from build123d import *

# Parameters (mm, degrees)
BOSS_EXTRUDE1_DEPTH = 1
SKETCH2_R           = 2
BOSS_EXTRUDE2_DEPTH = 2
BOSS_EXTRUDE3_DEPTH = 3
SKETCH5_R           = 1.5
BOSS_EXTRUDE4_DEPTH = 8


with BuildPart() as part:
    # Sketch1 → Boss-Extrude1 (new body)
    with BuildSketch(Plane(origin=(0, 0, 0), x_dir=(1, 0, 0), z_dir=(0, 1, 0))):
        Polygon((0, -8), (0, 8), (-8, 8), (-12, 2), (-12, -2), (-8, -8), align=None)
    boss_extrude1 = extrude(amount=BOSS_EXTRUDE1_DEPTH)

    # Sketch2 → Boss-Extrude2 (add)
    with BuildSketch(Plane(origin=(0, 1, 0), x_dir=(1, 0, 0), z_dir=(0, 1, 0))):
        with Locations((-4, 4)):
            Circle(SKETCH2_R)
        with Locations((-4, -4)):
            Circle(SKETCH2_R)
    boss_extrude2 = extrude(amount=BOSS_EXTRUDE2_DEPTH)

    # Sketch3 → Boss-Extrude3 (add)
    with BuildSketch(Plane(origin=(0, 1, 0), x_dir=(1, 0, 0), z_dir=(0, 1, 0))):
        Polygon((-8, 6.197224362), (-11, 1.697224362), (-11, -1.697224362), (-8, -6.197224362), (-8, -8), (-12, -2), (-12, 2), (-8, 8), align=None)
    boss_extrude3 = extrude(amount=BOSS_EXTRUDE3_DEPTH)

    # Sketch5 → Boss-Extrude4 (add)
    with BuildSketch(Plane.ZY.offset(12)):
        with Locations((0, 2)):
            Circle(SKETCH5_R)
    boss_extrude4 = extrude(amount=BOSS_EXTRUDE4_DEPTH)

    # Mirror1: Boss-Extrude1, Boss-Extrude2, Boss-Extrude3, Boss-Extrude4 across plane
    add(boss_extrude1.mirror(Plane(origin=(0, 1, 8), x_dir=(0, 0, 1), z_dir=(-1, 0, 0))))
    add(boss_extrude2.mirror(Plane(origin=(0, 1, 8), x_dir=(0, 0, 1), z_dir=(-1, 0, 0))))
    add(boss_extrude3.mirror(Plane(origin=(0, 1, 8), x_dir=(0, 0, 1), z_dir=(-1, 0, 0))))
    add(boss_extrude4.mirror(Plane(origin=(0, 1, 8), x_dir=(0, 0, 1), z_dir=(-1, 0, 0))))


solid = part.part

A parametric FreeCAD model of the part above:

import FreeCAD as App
import Part
import Sketcher


def add_polygon(sketch, points):
    """Adds a closed chain of lines whose ends are joined by coincident constraints."""
    first, n = sketch.GeometryCount, len(points)
    for a, b in zip(points, points[1:] + points[:1]):
        sketch.addGeometry(Part.LineSegment(App.Vector(*a, 0), App.Vector(*b, 0)), False)
    for i in range(n):
        sketch.addConstraint(Sketcher.Constraint("Coincident", first + i, 2, first + (i + 1) % n, 1))

doc = App.newDocument("Part")
params = doc.addObject("Spreadsheet::Sheet", "Params")
for row, (alias, value) in enumerate([
    ("sketch1_width", "8 mm"),
    ("sketch1_height", "16 mm"),
    ("sketch1_height2", "4 mm"),
    ("pad1_length", "1 mm"),
    ("sketch2_diameter", "4 mm"),
    ("pad2_length", "2 mm"),
    ("sketch3_height", "4 mm"),
    ("pad3_length", "3 mm"),
    ("sketch4_diameter", "3 mm"),
    ("pad4_length", "8 mm"),
], start=1):
    params.set(f"A{row}", alias)
    params.set(f"B{row}", "=" + value)
    params.setAlias(f"B{row}", alias)

body = doc.addObject("PartDesign::Body", "Body")

# Sketch on XZ plane
sketch1 = body.newObject("Sketcher::SketchObject", "Sketch")
sketch1.AttachmentSupport = (doc.getObject("XZ_Plane"), [""])
sketch1.MapMode = "FlatFace"
add_polygon(sketch1, [(0, 8), (0, -8), (-8, -8), (-12, -2), (-12, 2), (-8, 8)])  # lines 0-5
sketch1.addConstraint([
    Sketcher.Constraint("Vertical", 0),
    Sketcher.Constraint("Horizontal", 1),
    Sketcher.Constraint("Vertical", 3),
    Sketcher.Constraint("Horizontal", 5),
    Sketcher.Constraint("Symmetric", 0, 2, 5, 2, -1, 1),
    Sketcher.Constraint("Vertical", 1, 2, 4, 2),
    Sketcher.Constraint("Equal", 2, 4),
    Sketcher.Constraint("DistanceX", 1, 2, 1, 1, 8.0),
    Sketcher.Constraint("DistanceY", 0, 2, 0, 1, 16.0),
    Sketcher.Constraint("DistanceY", 3, 1, 3, 2, 4.0),
    Sketcher.Constraint("DistanceX", 2, 2, -1, 1, 12.0),
])
sketch1.setExpression("Constraints[13]", "Params.sketch1_width")
sketch1.setExpression("Constraints[14]", "Params.sketch1_height")
sketch1.setExpression("Constraints[15]", "Params.sketch1_height2")
pad1 = body.newObject("PartDesign::Pad", "Pad")
pad1.Profile = sketch1
pad1.setExpression("Length", "Params.pad1_length")
pad1.Reversed = True

# Sketch on XZ plane
sketch2 = body.newObject("Sketcher::SketchObject", "Sketch001")
sketch2.AttachmentSupport = (doc.getObject("XZ_Plane"), [""])
sketch2.MapMode = "FlatFace"
sketch2.AttachmentOffset = App.Placement(App.Vector(0, 0, -1), App.Rotation())
sketch2.addGeometry([
    Part.Circle(App.Vector(-4, -4, 0), App.Vector(0, 0, 1), 2),
    Part.Circle(App.Vector(-4, 4, 0), App.Vector(0, 0, 1), 2),
], False)
sketch2.addConstraint([
    Sketcher.Constraint("Equal", 0, 1),
    Sketcher.Constraint("Symmetric", 0, 3, 1, 3, -1),
    Sketcher.Constraint("Diameter", 0, 4.0),
    Sketcher.Constraint("DistanceX", 0, 3, -1, 1, 4.0),
    Sketcher.Constraint("DistanceY", 0, 3, -1, 1, 4.0),
])
sketch2.setExpression("Constraints[2]", "Params.sketch2_diameter")
pad2 = body.newObject("PartDesign::Pad", "Pad001")
pad2.Profile = sketch2
pad2.setExpression("Length", "Params.pad2_length")
pad2.Reversed = True

# Sketch on XZ plane
sketch3 = body.newObject("Sketcher::SketchObject", "Sketch002")
sketch3.AttachmentSupport = (doc.getObject("XZ_Plane"), [""])
sketch3.MapMode = "FlatFace"
sketch3.AttachmentOffset = App.Placement(App.Vector(0, 0, -1), App.Rotation())
add_polygon(sketch3, [(-11, -1.697224), (-8, -6.197224), (-8, -8), (-12, -2), (-12, 2), (-8, 8), (-8, 6.197224), (-11, 1.697224)])  # lines 0-7
sketch3.addConstraint([
    Sketcher.Constraint("Vertical", 1),
    Sketcher.Constraint("Vertical", 3),
    Sketcher.Constraint("Vertical", 5),
    Sketcher.Constraint("Vertical", 7),
    Sketcher.Constraint("Symmetric", 1, 2, 4, 2, -1),
    Sketcher.Constraint("Parallel", 0, 2),
    Sketcher.Constraint("Parallel", 4, 6),
    Sketcher.Constraint("Equal", 1, 5),
    Sketcher.Constraint("Equal", 2, 4),
    Sketcher.Constraint("DistanceY", 3, 1, 3, 2, 4.0),
    Sketcher.Constraint("DistanceX", 0, 2, -1, 1, 8.0),
    Sketcher.Constraint("DistanceY", 1, 2, -1, 1, 8.0),
    Sketcher.Constraint("DistanceX", 2, 2, -1, 1, 12.0),
    Sketcher.Constraint("DistanceX", 6, 2, -1, 1, 11.0),
    Sketcher.Constraint("DistanceY", 7, 2, 7, 1, 3.394449),
])
sketch3.setExpression("Constraints[17]", "Params.sketch3_height")
pad3 = body.newObject("PartDesign::Pad", "Pad002")
pad3.Profile = sketch3
pad3.setExpression("Length", "Params.pad3_length")
pad3.Reversed = True

# Sketch on YZ plane
sketch4 = body.newObject("Sketcher::SketchObject", "Sketch003")
sketch4.AttachmentSupport = (doc.getObject("YZ_Plane"), [""])
sketch4.MapMode = "FlatFace"
sketch4.AttachmentOffset = App.Placement(App.Vector(0, 0, -12), App.Rotation())
sketch4.addGeometry(Part.Circle(App.Vector(2, 0, 0), App.Vector(0, 0, 1), 1.5), False)
sketch4.addConstraint([
    Sketcher.Constraint("PointOnObject", 0, 3, -1),
    Sketcher.Constraint("Diameter", 0, 3.0),
    Sketcher.Constraint("DistanceX", -1, 1, 0, 3, 2.0),
])
sketch4.setExpression("Constraints[1]", "Params.sketch4_diameter")
pad4 = body.newObject("PartDesign::Pad", "Pad003")
pad4.Profile = sketch4
pad4.setExpression("Length", "Params.pad4_length")
pad4.Reversed = True
doc.recompute()

mirrored = body.newObject("PartDesign::Mirrored", "Mirrored")
mirrored.Originals = [pad1, pad2, pad3, pad4]
mirrored.MirrorPlane = (doc.getObject("YZ_Plane"), [""])
body.Tip = mirrored

doc.recompute()
